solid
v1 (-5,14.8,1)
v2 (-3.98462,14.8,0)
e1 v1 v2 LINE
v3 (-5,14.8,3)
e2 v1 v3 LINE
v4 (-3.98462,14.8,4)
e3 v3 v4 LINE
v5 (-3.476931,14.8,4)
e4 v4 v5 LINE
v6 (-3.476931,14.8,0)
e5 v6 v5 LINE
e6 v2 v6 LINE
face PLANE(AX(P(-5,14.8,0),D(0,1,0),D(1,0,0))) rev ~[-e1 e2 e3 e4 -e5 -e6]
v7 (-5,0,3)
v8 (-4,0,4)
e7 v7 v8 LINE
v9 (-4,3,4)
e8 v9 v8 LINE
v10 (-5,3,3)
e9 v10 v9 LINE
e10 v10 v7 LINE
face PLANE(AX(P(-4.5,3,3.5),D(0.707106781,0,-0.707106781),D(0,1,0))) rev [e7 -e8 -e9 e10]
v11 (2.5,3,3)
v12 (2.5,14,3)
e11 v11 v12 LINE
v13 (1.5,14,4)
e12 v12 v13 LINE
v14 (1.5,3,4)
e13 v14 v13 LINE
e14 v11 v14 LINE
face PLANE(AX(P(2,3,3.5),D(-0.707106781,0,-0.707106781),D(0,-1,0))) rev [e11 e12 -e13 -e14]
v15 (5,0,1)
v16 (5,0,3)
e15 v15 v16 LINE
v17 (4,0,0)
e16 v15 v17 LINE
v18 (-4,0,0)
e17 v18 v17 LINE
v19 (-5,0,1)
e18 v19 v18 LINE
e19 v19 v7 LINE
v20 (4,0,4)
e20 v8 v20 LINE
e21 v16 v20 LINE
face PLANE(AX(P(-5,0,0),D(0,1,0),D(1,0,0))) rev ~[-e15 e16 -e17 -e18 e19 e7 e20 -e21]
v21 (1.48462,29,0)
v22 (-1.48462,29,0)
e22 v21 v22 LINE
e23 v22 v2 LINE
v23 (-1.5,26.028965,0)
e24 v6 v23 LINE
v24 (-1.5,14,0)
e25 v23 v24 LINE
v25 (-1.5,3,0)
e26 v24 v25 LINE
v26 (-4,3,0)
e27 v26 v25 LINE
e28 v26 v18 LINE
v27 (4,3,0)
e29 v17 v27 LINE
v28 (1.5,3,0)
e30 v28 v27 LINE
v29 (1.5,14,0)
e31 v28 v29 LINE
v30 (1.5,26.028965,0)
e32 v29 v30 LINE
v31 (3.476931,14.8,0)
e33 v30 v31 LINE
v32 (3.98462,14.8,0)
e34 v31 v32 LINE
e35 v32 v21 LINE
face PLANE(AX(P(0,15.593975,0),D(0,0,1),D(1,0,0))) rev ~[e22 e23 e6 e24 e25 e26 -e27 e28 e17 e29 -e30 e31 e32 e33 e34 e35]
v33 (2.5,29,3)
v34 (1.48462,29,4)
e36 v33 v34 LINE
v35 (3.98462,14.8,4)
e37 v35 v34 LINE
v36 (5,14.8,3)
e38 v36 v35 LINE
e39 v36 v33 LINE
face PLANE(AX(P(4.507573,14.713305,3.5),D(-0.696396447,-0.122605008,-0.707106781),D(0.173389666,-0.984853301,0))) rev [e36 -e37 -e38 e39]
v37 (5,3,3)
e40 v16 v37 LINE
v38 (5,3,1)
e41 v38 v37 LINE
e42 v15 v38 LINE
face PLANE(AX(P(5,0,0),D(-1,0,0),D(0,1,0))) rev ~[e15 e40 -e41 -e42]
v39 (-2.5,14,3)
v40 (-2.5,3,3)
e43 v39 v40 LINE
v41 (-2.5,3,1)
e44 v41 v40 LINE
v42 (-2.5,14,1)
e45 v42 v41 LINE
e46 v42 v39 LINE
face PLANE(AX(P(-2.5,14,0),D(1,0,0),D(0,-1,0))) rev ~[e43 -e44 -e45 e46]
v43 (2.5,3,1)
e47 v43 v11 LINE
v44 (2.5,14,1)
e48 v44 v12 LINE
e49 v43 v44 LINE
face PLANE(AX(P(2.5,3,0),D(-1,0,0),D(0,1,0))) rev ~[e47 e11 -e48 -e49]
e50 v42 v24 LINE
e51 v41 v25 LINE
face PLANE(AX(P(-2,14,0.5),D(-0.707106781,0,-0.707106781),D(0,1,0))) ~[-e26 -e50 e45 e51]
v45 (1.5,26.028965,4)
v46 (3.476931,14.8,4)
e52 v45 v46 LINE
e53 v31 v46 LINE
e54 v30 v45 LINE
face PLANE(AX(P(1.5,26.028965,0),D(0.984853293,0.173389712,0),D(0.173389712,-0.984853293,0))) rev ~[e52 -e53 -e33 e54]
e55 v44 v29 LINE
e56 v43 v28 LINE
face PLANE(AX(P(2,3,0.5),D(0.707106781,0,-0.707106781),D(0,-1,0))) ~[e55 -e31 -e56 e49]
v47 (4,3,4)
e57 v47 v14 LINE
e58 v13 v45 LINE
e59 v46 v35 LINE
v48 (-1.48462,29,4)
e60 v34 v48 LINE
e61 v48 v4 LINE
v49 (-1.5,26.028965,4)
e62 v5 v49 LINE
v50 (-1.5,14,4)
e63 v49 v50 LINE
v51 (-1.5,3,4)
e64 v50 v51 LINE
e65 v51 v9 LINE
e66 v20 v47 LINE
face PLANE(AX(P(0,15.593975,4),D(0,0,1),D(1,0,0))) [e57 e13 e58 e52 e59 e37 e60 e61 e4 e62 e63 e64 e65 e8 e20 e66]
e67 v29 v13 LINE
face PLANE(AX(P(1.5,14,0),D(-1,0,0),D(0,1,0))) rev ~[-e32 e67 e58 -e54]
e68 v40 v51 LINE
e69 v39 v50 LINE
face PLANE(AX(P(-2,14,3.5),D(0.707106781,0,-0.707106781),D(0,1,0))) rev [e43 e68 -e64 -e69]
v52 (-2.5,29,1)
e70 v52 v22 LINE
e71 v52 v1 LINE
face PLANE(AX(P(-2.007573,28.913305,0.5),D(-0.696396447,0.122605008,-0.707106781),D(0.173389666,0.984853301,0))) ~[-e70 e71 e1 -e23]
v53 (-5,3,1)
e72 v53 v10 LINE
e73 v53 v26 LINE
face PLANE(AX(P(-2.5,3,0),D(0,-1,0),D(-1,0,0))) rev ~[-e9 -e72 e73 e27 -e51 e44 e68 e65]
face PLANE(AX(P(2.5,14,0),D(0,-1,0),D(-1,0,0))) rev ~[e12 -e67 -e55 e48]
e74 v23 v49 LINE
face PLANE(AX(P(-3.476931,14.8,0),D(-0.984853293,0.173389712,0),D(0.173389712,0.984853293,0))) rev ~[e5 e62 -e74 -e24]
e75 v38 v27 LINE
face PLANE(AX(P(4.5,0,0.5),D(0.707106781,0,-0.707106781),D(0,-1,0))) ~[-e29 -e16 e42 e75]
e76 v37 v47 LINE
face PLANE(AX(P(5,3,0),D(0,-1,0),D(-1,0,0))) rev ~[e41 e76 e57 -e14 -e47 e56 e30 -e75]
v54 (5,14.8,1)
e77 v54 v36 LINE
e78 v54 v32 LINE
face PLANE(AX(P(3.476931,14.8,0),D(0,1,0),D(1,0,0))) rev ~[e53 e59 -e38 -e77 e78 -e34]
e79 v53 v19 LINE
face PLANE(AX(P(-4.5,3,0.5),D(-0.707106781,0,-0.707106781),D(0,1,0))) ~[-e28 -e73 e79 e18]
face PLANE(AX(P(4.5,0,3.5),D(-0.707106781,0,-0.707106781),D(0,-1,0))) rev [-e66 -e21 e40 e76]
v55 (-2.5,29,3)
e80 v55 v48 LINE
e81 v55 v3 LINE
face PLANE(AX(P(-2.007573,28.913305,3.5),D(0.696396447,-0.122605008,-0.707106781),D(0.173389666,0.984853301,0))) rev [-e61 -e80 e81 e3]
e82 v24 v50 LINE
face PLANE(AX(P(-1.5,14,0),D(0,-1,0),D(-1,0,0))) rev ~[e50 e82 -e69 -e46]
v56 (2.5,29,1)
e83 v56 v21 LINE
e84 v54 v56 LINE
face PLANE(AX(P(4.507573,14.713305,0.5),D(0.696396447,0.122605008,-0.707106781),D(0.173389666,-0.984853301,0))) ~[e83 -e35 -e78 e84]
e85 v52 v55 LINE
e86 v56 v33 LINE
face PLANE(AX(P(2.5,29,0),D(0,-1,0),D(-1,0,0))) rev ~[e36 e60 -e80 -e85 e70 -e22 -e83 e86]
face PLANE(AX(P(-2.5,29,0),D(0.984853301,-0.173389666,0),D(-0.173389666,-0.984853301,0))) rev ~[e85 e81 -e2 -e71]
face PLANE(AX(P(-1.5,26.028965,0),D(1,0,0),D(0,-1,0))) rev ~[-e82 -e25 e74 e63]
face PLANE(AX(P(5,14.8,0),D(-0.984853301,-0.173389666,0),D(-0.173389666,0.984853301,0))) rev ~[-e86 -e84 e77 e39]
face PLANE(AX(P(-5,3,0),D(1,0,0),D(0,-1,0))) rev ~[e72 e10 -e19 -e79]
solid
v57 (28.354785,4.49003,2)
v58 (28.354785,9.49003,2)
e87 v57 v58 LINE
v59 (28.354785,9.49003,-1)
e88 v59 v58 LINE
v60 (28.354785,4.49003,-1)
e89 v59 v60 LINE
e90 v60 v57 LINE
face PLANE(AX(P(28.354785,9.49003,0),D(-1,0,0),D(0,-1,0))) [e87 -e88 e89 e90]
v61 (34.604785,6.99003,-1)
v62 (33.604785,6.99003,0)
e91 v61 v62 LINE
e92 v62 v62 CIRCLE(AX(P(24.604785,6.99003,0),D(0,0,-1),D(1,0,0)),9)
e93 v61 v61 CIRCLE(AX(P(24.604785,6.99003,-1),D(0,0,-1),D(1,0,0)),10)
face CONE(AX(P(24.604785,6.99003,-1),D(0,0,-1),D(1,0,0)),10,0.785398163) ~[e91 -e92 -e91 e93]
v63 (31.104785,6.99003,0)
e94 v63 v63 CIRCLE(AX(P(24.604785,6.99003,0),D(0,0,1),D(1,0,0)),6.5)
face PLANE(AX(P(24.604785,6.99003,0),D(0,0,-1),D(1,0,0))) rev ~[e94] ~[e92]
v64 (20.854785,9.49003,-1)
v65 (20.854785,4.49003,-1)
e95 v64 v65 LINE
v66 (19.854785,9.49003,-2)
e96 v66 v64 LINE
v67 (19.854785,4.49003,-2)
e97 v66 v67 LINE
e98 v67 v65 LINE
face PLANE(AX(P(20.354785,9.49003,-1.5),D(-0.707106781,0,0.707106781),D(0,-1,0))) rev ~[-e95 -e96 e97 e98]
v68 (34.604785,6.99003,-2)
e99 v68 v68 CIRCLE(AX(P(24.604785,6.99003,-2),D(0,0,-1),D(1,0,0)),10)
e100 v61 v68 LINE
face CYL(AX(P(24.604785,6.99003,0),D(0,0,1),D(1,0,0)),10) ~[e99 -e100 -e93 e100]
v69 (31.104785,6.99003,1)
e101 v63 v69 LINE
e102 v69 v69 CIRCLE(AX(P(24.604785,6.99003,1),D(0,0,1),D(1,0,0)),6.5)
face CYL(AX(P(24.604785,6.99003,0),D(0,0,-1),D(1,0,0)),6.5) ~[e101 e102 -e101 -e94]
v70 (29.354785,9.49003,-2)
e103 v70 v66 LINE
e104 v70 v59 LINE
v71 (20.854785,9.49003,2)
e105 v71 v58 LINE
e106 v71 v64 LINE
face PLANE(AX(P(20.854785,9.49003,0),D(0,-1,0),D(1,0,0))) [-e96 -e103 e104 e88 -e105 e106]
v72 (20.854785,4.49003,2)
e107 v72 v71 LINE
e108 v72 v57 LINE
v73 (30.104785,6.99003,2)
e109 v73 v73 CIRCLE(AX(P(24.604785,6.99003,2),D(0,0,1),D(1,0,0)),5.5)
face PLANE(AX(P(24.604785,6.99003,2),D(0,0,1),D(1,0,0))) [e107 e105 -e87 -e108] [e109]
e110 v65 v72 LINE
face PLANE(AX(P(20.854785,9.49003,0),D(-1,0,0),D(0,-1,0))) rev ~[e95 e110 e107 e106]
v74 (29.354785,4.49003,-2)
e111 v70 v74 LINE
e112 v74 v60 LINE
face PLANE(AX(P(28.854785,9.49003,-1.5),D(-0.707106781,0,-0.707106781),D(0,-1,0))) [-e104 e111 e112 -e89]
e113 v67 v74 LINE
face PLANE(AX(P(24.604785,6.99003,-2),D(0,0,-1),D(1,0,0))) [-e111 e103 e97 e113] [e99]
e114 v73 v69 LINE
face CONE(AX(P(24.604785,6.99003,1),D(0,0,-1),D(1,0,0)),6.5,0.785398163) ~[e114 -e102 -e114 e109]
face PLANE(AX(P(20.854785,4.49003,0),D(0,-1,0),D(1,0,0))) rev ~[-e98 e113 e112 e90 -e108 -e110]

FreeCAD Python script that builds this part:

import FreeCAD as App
import Part
import Sketcher
from FreeCAD import Vector


def edges_at(feature, points):
    """Names of the edges that pass closest to the given points."""
    edges = feature.Shape.Edges
    near = lambda p: min(range(len(edges)), key=lambda i: edges[i].distToShape(Part.Vertex(*p))[0])
    return sorted({f"Edge{near(p) + 1}" for p in points})


def add_polygon(sketch, points):
    """Adds a closed chain of lines whose ends are joined by coincident constraints."""
    first, n = sketch.GeometryCount, len(points)
    for a, b in zip(points, points[1:] + points[:1]):
        sketch.addGeometry(Part.LineSegment(App.Vector(*a, 0), App.Vector(*b, 0)), False)
    for i in range(n):
        sketch.addConstraint(Sketcher.Constraint("Coincident", first + i, 2, first + (i + 1) % n, 1))

doc = App.newDocument("Part")
body = doc.addObject("PartDesign::Body", "Body")

# Sketch on XY plane
sketch1 = doc.addObject("Sketcher::SketchObject", "Sketch")
body.addObject(sketch1)
sketch1.AttachmentSupport = (doc.XY_Plane, [""])
sketch1.MapMode = "FlatFace"
add_polygon(sketch1, [(-2.5, 29), (-5, 14.8), (-3.5, 14.8), (-1.5, 26), (-1.5, 14), (-2.5, 14), (-2.5, 3), (-5, 3), (-5, 0), (5, 0), (5, 3), (2.5, 3), (2.5, 14), (1.5, 14), (1.5, 26), (3.5, 14.8), (5, 14.8), (2.5, 29)])  # lines 0-17
sketch1.addConstraint([
    Sketcher.Constraint("Horizontal", 1),
    Sketcher.Constraint("Vertical", 3),
    Sketcher.Constraint("Horizontal", 4),
    Sketcher.Constraint("Vertical", 5),
    Sketcher.Constraint("Horizontal", 6),
    Sketcher.Constraint("Vertical", 7),
    Sketcher.Constraint("Horizontal", 8),
    Sketcher.Constraint("Vertical", 9),
    Sketcher.Constraint("Horizontal", 10),
    Sketcher.Constraint("Vertical", 11),
    Sketcher.Constraint("Horizontal", 12),
    Sketcher.Constraint("Vertical", 13),
    Sketcher.Constraint("Horizontal", 15),
    Sketcher.Constraint("Horizontal", 17),
    Sketcher.Constraint("Symmetric", 7, 2, 8, 2, -1, 1),
    Sketcher.Constraint("Symmetric", 5, 2, 10, 2, -2),
    Sketcher.Constraint("Symmetric", 3, 2, 12, 2, -2),
    Sketcher.Constraint("Symmetric", 1, 2, 14, 2, -2),
    Sketcher.Constraint("Parallel", 0, 2),
    Sketcher.Constraint("Parallel", 14, 16),
    Sketcher.Constraint("Horizontal", 2, 2, 13, 2),
    Sketcher.Constraint("Vertical", 0, 2, 6, 2),
    Sketcher.Constraint("Vertical", 9, 2, 15, 2),
    Sketcher.Constraint("Vertical", 11, 2, 16, 2),
    Sketcher.Constraint("DistanceX", 4, 2, 4, 1, 1.0),
    Sketcher.Constraint("DistanceX", 8, 1, 8, 2, 10.0),
    Sketcher.Constraint("DistanceX", 17, 2, 17, 1, 5.0),
    Sketcher.Constraint("DistanceY", 5, 2, 5, 1, 11.0),
    Sketcher.Constraint("DistanceY", 7, 2, 7, 1, 3.0),
    Sketcher.Constraint("DistanceY", -1, 1, 16, 2, 29.0),
    Sketcher.Constraint("DistanceY", -1, 1, 0, 2, 14.8),
    Sketcher.Constraint("DistanceX", 1, 1, 1, 2, 1.523069),
])
pad1 = doc.addObject("PartDesign::Pad", "Pad")
body.addObject(pad1)
pad1.Profile = sketch1
pad1.Length = 4
doc.recompute()

chamfer = doc.addObject("PartDesign::Chamfer", "Chamfer")
body.addObject(chamfer)
chamfer.Base = (pad1, edges_at(pad1, [
    (2.5, 8.5, 0),
    (3.75, 21.9, 0),
    (-2.5, 8.5, 0),
    (-3.75, 21.9, 0),
    (-2.5, 8.5, 4),
    (2.5, 8.5, 4),
    (3.75, 21.9, 4),
    (-3.75, 21.9, 4),
]))
chamfer.Size = 1
doc.recompute()

chamfer2 = doc.addObject("PartDesign::Chamfer", "Chamfer001")
body.addObject(chamfer2)
chamfer2.Base = (chamfer, edges_at(chamfer, [
    (5, 1.5, 0),
    (-5, 1.5, 0),
    (-5, 1.5, 4),
    (5, 1.5, 4),
]))
chamfer2.Size = 1
body2 = doc.addObject("PartDesign::Body", "Body001")

# Sketch on XY plane
sketch2 = doc.addObject("Sketcher::SketchObject", "Sketch001")
body2.addObject(sketch2)
sketch2.AttachmentSupport = (doc.getObject("XY_Plane001"), [""])
sketch2.MapMode = "FlatFace"
sketch2.addGeometry(Part.Circle(Vector(25, 7, 0), Vector(0, 0, 1), 6), False)  # 0
add_polygon(sketch2, [(28, 4), (21, 4), (21, 9), (28, 9)])  # lines 1-4
sketch2.addConstraint([
    Sketcher.Constraint("Horizontal", 1),
    Sketcher.Constraint("Vertical", 2),
    Sketcher.Constraint("Horizontal", 3),
    Sketcher.Constraint("Vertical", 4),
    Sketcher.Constraint("Diameter", 0, 13.0),
    Sketcher.Constraint("DistanceY", 2, 1, 2, 2, 5.0),
    Sketcher.Constraint("DistanceX", 1, 2, 1, 1, 7.5),
    Sketcher.Constraint("DistanceY", 1, 2, 0, 3, 2.5),
    Sketcher.Constraint("DistanceX", 1, 2, 0, 3, 3.75),
    Sketcher.Constraint("DistanceY", -1, 1, 0, 3, 6.99003),
    Sketcher.Constraint("DistanceX", -1, 1, 0, 3, 24.604785),
])
pad2 = doc.addObject("PartDesign::Pad", "Pad001")
body2.addObject(pad2)
pad2.Profile = sketch2
pad2.Length = 2

# Sketch on XY plane
sketch3 = doc.addObject("Sketcher::SketchObject", "Sketch002")
body2.addObject(sketch3)
sketch3.AttachmentSupport = (doc.getObject("XY_Plane001"), [""])
sketch3.MapMode = "FlatFace"
sketch3.addGeometry(Part.Circle(Vector(25, 7, 0), Vector(0, 0, 1), 10), False)  # 0
add_polygon(sketch3, [(28, 9), (21, 9), (21, 4), (28, 4)])  # lines 1-4
sketch3.addConstraint([
    Sketcher.Constraint("Horizontal", 1),
    Sketcher.Constraint("Vertical", 2),
    Sketcher.Constraint("Horizontal", 3),
    Sketcher.Constraint("Vertical", 4),
    Sketcher.Constraint("Diameter", 0, 20.0),
    Sketcher.Constraint("DistanceY", 2, 2, 2, 1, 5.0),
    Sketcher.Constraint("DistanceX", 1, 2, 1, 1, 7.5),
    Sketcher.Constraint("DistanceY", 0, 3, 1, 2, 2.5),
    Sketcher.Constraint("DistanceX", 1, 2, 0, 3, 3.75),
    Sketcher.Constraint("DistanceY", -1, 1, 0, 3, 6.99003),
    Sketcher.Constraint("DistanceX", -1, 1, 0, 3, 24.604785),
])
pad3 = doc.addObject("PartDesign::Pad", "Pad002")
body2.addObject(pad3)
pad3.Profile = sketch3
pad3.Length = 2
pad3.Reversed = True
doc.recompute()

chamfer3 = doc.addObject("PartDesign::Chamfer", "Chamfer002")
body2.addObject(chamfer3)
chamfer3.Base = (pad3, edges_at(pad3, [
    (20.855, 6.99, -2),
    (28.355, 6.99, -2),
    (18.105, 6.99, 2),
    (14.605, 6.99, 0),
]))
chamfer3.Size = 1

doc.recompute()
